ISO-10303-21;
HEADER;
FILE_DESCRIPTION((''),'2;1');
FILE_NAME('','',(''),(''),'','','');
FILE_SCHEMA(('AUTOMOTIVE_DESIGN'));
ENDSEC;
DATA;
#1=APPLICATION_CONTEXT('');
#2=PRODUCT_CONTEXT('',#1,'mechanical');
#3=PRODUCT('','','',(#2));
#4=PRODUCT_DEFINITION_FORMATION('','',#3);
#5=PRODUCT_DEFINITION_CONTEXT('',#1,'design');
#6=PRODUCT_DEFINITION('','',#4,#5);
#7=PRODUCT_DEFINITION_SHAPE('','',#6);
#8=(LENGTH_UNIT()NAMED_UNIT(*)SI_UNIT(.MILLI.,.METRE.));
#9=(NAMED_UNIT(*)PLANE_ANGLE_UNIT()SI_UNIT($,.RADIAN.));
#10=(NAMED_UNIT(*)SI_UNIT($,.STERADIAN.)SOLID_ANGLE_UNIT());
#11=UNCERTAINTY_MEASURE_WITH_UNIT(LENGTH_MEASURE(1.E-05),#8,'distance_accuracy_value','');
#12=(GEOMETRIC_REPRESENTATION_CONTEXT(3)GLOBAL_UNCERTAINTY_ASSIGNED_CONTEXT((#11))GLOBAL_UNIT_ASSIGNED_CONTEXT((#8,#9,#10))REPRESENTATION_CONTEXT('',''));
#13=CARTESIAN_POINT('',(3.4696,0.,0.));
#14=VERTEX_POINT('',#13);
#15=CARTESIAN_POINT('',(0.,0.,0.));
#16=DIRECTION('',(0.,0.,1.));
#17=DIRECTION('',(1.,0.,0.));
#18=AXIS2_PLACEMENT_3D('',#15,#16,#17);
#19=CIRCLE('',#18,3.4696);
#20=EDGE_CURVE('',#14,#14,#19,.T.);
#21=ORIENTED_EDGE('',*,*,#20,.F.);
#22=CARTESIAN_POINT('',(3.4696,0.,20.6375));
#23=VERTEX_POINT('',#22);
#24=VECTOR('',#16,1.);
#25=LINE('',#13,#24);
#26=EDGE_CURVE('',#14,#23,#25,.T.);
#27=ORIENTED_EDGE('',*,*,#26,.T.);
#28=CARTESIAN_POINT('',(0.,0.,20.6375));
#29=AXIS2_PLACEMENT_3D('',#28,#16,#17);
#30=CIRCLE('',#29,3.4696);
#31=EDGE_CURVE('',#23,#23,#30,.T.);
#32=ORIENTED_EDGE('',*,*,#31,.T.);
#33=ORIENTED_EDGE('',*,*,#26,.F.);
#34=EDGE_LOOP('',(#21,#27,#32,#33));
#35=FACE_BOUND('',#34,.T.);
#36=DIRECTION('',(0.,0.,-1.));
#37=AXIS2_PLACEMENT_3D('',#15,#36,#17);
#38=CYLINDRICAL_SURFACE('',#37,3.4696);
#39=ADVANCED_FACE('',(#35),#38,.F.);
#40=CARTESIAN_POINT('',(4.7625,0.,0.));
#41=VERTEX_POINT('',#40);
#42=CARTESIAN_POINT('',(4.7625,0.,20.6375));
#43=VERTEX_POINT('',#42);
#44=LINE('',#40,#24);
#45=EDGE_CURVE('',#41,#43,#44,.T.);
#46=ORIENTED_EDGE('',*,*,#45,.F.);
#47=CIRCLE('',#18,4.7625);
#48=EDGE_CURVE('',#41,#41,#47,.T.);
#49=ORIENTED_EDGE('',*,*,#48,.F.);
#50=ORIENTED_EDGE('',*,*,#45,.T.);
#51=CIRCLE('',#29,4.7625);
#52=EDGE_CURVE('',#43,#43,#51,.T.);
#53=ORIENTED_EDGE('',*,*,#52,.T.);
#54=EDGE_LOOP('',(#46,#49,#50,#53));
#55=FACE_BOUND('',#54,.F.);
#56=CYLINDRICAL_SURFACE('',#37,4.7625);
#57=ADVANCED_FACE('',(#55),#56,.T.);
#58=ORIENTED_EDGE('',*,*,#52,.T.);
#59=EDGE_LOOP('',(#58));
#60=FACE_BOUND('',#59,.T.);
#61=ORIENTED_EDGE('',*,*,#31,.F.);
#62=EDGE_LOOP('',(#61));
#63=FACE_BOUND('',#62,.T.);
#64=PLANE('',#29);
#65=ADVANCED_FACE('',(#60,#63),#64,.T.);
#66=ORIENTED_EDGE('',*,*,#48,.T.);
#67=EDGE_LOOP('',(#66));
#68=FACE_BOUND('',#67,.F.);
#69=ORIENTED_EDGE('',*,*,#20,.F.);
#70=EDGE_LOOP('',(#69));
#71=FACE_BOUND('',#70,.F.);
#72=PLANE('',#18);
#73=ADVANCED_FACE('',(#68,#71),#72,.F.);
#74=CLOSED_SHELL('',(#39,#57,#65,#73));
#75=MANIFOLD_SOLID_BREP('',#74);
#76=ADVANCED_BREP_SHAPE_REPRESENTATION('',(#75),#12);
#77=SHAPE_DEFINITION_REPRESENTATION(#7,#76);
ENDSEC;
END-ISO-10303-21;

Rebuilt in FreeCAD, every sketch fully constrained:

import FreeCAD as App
import Part
import Sketcher
from FreeCAD import Vector
Q = App.Units.Quantity

doc = App.newDocument("Part")
body = doc.addObject("PartDesign::Body", "Body")

# Sketch on XY plane
sketch1 = doc.addObject("Sketcher::SketchObject", "Sketch")
body.addObject(sketch1)
sketch1.AttachmentSupport = (doc.XY_Plane, [""])
sketch1.MapMode = "FlatFace"
sketch1.addGeometry(Part.Circle(Vector(0, 0, 0), Vector(0, 0, 1), 4.8), False)
sketch1.addGeometry(Part.Circle(Vector(0, 0, 0), Vector(0, 0, 1), 3.5), False)
sketch1.addConstraint(Sketcher.Constraint("Coincident", 0, 3, -1, 1))
sketch1.addConstraint(Sketcher.Constraint("Coincident", 1, 3, -1, 1))
sketch1.addConstraint(Sketcher.Constraint("Diameter", 0, Q("0.375 in")))
sketch1.addConstraint(Sketcher.Constraint("Diameter", 1, Q("0.2732 in")))
pad1 = doc.addObject("PartDesign::Pad", "Pad")
body.addObject(pad1)
pad1.Profile = sketch1
pad1.Length = Q("0.8125 in")

doc.recompute()
